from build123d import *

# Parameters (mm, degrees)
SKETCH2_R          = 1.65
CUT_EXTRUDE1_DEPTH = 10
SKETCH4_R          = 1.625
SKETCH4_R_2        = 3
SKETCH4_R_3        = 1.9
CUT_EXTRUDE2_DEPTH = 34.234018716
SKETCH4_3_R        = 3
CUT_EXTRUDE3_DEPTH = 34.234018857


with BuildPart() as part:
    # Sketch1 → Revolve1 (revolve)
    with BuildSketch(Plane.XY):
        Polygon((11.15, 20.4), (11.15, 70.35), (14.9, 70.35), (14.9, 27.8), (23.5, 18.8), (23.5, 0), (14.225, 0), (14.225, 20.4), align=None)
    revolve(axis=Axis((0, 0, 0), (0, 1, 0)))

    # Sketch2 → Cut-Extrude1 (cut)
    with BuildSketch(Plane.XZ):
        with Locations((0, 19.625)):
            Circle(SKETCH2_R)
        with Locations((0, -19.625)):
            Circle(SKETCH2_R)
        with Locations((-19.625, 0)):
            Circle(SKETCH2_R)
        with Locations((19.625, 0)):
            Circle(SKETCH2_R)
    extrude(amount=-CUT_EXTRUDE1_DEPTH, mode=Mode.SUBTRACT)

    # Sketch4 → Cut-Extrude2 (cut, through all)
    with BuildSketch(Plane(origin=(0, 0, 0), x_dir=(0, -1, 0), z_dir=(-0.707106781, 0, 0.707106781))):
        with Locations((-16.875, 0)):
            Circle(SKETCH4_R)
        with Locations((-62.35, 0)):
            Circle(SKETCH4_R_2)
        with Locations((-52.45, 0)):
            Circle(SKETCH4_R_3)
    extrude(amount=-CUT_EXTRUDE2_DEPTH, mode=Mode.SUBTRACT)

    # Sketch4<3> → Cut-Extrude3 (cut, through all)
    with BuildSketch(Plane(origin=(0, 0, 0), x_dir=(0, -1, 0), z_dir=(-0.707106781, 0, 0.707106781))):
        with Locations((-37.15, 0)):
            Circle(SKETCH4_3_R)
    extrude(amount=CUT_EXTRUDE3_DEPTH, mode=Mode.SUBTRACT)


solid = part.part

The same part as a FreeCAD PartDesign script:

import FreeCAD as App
import Part
import Sketcher
from FreeCAD import Vector

doc = App.newDocument("Part")
params = doc.addObject("Spreadsheet::Sheet", "Params")
for row, (alias, value) in enumerate([
    ("sketch1_height", "20.4 mm"),
    ("sketch1_height2", "18.8 mm"),
    ("sketch1_width", "3.75 mm"),
    ("sketch1_height3", "49.95 mm"),
    ("revolution_angle", "360 deg"),
    ("sketch2_diameter", "3.3 mm"),
    ("pocket1_length", "10 mm"),
    ("sketch3_diameter", "6 mm"),
    ("sketch3_diameter2", "3.8 mm"),
    ("sketch3_diameter3", "3.25 mm"),
    ("sketch4_diameter", "6 mm"),
], start=1):
    params.set(f"A{row}", alias)
    params.set(f"B{row}", "=" + value)
    params.setAlias(f"B{row}", alias)

body = doc.addObject("PartDesign::Body", "Body")

sketch1 = body.newObject("Sketcher::SketchObject", "Sketch")
sketch1.AttachmentSupport = (doc.getObject("XY_Plane"), [""])
sketch1.MapMode = "FlatFace"
sketch1.addGeometry([
    Part.LineSegment(Vector(11.2, 70.3, 0), Vector(11.2, 20.4, 0)),
    Part.LineSegment(Vector(11.2, 20.4, 0), Vector(14.2, 20.4, 0)),
    Part.LineSegment(Vector(14.2, 20.4, 0), Vector(14.2, 0, 0)),
    Part.LineSegment(Vector(14.2, 0, 0), Vector(23.5, 0, 0)),
    Part.LineSegment(Vector(23.5, 0, 0), Vector(23.5, 18.8, 0)),
    Part.LineSegment(Vector(23.5, 18.8, 0), Vector(14.9, 27.8, 0)),
    Part.LineSegment(Vector(14.9, 27.8, 0), Vector(14.9, 70.3, 0)),
    Part.LineSegment(Vector(14.9, 70.3, 0), Vector(11.2, 70.3, 0)),
], False)
sketch1.addConstraint([
    Sketcher.Constraint("Coincident", 0, 2, 1, 1),
    Sketcher.Constraint("Coincident", 1, 2, 2, 1),
    Sketcher.Constraint("Coincident", 2, 2, 3, 1),
    Sketcher.Constraint("Coincident", 3, 2, 4, 1),
    Sketcher.Constraint("Coincident", 4, 2, 5, 1),
    Sketcher.Constraint("Coincident", 5, 2, 6, 1),
    Sketcher.Constraint("Coincident", 6, 2, 7, 1),
    Sketcher.Constraint("Coincident", 7, 2, 0, 1),
    Sketcher.Constraint("Vertical", 0),
    Sketcher.Constraint("Horizontal", 1),
    Sketcher.Constraint("Vertical", 2),
    Sketcher.Constraint("Horizontal", 3),
    Sketcher.Constraint("Vertical", 4),
    Sketcher.Constraint("Vertical", 6),
    Sketcher.Constraint("Horizontal", 7),
    Sketcher.Constraint("PointOnObject", 2, 2, -1),
    Sketcher.Constraint("DistanceY", 2, 2, 2, 1, 20.4),
    Sketcher.Constraint("DistanceY", 4, 1, 4, 2, 18.8),
    Sketcher.Constraint("DistanceY", 4, 2, 5, 2, 9.0),
    Sketcher.Constraint("DistanceX", 7, 2, 7, 1, 3.75),
    Sketcher.Constraint("DistanceY", 0, 2, 0, 1, 49.95),
    Sketcher.Constraint("DistanceX", -1, 1, 3, 2, 23.5),
    Sketcher.Constraint("DistanceX", -1, 1, 5, 2, 14.9),
    Sketcher.Constraint("DistanceX", 1, 1, 1, 2, 3.075),
])
sketch1.setExpression("Constraints[16]", "Params.sketch1_height")
sketch1.setExpression("Constraints[17]", "Params.sketch1_height2")
sketch1.setExpression("Constraints[19]", "Params.sketch1_width")
sketch1.setExpression("Constraints[20]", "Params.sketch1_height3")
revolution = body.newObject("PartDesign::Revolution", "Revolution")
revolution.Profile = sketch1
revolution.ReferenceAxis = (sketch1, ["V_Axis"])
revolution.setExpression("Angle", "Params.revolution_angle")

sketch2 = body.newObject("Sketcher::SketchObject", "Sketch001")
sketch2.AttachmentSupport = (doc.getObject("XZ_Plane"), [""])
sketch2.MapMode = "FlatFace"
sketch2.addGeometry([
    Part.Circle(Vector(0, 19.6, 0), Vector(0, 0, 1), 1.6),
    Part.Circle(Vector(0, -19.6, 0), Vector(0, 0, 1), 1.6),
    Part.Circle(Vector(-19.6, 0, 0), Vector(0, 0, 1), 1.6),
    Part.Circle(Vector(19.6, 0, 0), Vector(0, 0, 1), 1.6),
], False)
sketch2.addConstraint([
    Sketcher.Constraint("Equal", 0, 1),
    Sketcher.Constraint("Equal", 1, 2),
    Sketcher.Constraint("Equal", 2, 3),
    Sketcher.Constraint("Symmetric", 0, 3, 1, 3, -1, 1),
    Sketcher.Constraint("Symmetric", 2, 3, 3, 3, -1, 1),
    Sketcher.Constraint("PointOnObject", 0, 3, -2),
    Sketcher.Constraint("PointOnObject", 2, 3, -1),
    Sketcher.Constraint("Diameter", 0, 3.3),
    Sketcher.Constraint("DistanceY", 1, 3, 0, 3, 39.25),
    Sketcher.Constraint("DistanceX", 2, 3, 3, 3, 39.25),
])
sketch2.setExpression("Constraints[7]", "Params.sketch2_diameter")
pocket1 = body.newObject("PartDesign::Pocket", "Pocket")
pocket1.Profile = sketch2
pocket1.setExpression("Length", "Params.pocket1_length")

sketch3 = body.newObject("Sketcher::SketchObject", "Sketch002")
sketch3.Placement = App.Placement(Vector(0, 0, 0), App.Rotation(Vector(0, -1, 0), Vector(0.707106781, 0, 0.707106781), Vector(-0.707106781, 0, 0.707106781), "ZXY"))
sketch3.addGeometry([
    Part.Circle(Vector(-16.9, 0, 0), Vector(0, 0, 1), 1.6),
    Part.Circle(Vector(-62.4, 0, 0), Vector(0, 0, 1), 3),
    Part.Circle(Vector(-52.5, 0, 0), Vector(0, 0, 1), 1.9),
], False)
sketch3.addConstraint([
    Sketcher.Constraint("PointOnObject", 0, 3, -1),
    Sketcher.Constraint("PointOnObject", 1, 3, -1),
    Sketcher.Constraint("PointOnObject", 2, 3, -1),
    Sketcher.Constraint("Diameter", 1, 6.0),
    Sketcher.Constraint("Diameter", 2, 3.8),
    Sketcher.Constraint("Diameter", 0, 3.25),
    Sketcher.Constraint("DistanceX", 1, 3, 2, 3, 9.9),
    Sketcher.Constraint("DistanceX", 1, 3, -1, 1, 62.35),
    Sketcher.Constraint("DistanceX", 0, 3, -1, 1, 16.875),
])
sketch3.setExpression("Constraints[3]", "Params.sketch3_diameter")
sketch3.setExpression("Constraints[4]", "Params.sketch3_diameter2")
sketch3.setExpression("Constraints[5]", "Params.sketch3_diameter3")
pocket2 = body.newObject("PartDesign::Pocket", "Pocket001")
pocket2.Profile = sketch3
pocket2.Type = "ThroughAll"

sketch4 = body.newObject("Sketcher::SketchObject", "Sketch003")
sketch4.Placement = App.Placement(Vector(0, 0, 0), App.Rotation(Vector(0, -1, 0), Vector(0.707106781, 0, 0.707106781), Vector(-0.707106781, 0, 0.707106781), "ZXY"))
sketch4.addGeometry(Part.Circle(Vector(-37.1, 0, 0), Vector(0, 0, 1), 3), False)
sketch4.addConstraint([
    Sketcher.Constraint("PointOnObject", 0, 3, -1),
    Sketcher.Constraint("Diameter", 0, 6.0),
    Sketcher.Constraint("DistanceX", 0, 3, -1, 1, 37.15),
])
sketch4.setExpression("Constraints[1]", "Params.sketch4_diameter")
pocket3 = body.newObject("PartDesign::Pocket", "Pocket002")
pocket3.Profile = sketch4
pocket3.Type = "ThroughAll"
pocket3.Reversed = True

doc.recompute()
